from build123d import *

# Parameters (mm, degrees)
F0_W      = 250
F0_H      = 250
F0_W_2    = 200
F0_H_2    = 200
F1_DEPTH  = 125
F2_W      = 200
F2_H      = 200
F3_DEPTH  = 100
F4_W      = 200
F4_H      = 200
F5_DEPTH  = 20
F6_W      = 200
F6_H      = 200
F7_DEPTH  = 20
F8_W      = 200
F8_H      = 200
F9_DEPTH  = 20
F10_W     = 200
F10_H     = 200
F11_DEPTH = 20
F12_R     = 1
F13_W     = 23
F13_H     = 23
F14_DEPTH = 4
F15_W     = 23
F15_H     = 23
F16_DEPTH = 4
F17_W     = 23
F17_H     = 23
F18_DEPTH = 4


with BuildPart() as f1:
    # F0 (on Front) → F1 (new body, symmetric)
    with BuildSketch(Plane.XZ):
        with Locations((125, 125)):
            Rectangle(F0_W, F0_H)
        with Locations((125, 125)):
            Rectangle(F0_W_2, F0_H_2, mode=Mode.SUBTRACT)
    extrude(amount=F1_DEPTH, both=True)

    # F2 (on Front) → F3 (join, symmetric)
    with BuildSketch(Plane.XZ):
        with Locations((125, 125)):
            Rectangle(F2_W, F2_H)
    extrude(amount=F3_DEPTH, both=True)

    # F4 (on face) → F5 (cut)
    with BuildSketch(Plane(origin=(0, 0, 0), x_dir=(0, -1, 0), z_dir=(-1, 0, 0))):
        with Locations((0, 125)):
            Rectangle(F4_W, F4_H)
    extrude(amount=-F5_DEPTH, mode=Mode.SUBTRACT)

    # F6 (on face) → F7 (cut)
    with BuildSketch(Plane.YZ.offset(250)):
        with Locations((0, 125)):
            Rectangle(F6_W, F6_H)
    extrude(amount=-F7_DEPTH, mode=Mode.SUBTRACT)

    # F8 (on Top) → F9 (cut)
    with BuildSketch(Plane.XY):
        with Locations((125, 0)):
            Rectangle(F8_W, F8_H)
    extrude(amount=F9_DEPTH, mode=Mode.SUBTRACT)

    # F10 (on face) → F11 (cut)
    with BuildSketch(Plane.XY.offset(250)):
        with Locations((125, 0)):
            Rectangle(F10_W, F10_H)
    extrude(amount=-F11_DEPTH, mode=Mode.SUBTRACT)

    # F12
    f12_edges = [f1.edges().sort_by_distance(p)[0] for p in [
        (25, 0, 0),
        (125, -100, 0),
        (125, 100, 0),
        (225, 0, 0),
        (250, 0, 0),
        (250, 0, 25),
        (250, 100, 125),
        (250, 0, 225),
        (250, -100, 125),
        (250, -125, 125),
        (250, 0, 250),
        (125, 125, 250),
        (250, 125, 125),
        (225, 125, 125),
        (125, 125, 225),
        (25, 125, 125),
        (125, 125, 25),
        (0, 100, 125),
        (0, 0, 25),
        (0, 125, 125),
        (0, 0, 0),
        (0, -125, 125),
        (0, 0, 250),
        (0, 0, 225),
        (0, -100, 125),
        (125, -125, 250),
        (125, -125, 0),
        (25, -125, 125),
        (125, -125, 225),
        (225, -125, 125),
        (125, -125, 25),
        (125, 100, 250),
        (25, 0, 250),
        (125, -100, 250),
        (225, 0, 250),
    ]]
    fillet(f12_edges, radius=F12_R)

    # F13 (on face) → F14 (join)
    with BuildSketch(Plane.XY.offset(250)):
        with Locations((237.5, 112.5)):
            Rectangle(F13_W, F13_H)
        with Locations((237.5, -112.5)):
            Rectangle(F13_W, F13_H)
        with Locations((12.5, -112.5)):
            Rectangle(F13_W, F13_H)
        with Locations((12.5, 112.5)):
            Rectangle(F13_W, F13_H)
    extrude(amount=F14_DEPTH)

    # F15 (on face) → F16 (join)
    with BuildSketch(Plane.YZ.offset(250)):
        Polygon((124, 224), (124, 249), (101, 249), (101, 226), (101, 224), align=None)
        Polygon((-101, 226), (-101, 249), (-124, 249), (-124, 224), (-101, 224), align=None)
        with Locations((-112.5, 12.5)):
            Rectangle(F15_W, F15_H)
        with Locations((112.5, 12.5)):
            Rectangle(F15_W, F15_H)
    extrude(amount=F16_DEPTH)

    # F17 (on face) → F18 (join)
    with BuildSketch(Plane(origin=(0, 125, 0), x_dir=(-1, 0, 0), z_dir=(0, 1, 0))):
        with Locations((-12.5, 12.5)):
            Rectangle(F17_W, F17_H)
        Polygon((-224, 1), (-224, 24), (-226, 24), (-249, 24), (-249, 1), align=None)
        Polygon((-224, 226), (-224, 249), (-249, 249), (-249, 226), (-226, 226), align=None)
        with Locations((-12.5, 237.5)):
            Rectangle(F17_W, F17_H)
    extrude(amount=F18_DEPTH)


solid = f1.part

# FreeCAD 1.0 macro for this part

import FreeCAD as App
import Part
import Sketcher

V = App.Vector
Q = App.Units.Quantity


def edges_at(feature, points):
    """Names of the edges that pass closest to the given points."""
    edges = feature.Shape.Edges
    near = lambda p: min(range(len(edges)), key=lambda i: edges[i].distToShape(Part.Vertex(*p))[0])
    return sorted({f"Edge{near(p) + 1}" for p in points})

doc = App.newDocument("Part")
body = doc.addObject("PartDesign::Body", "Body")

# Sketch on XZ plane
sketch1 = body.newObject("Sketcher::SketchObject", "Sketch")
sketch1.AttachmentSupport = (doc.getObject("XZ_Plane"), [""])
sketch1.MapMode = "FlatFace"
sketch1.addGeometry([
    Part.LineSegment(V(0, 250, 0), V(0, 0, 0)),  # 0
    Part.LineSegment(V(0, 0, 0), V(250, 0, 0)),  # 1
    Part.LineSegment(V(250, 0, 0), V(250, 250, 0)),  # 2
    Part.LineSegment(V(250, 250, 0), V(0, 250, 0)),  # 3
    Part.LineSegment(V(225, 25, 0), V(25, 25, 0)),  # 4
    Part.LineSegment(V(25, 25, 0), V(25, 225, 0)),  # 5
    Part.LineSegment(V(25, 225, 0), V(225, 225, 0)),  # 6
    Part.LineSegment(V(225, 225, 0), V(225, 25, 0)),  # 7
], False)
sketch1.addConstraint([
    Sketcher.Constraint("Coincident", 0, 2, 1, 1),
    Sketcher.Constraint("Coincident", 1, 2, 2, 1),
    Sketcher.Constraint("Coincident", 2, 2, 3, 1),
    Sketcher.Constraint("Coincident", 3, 2, 0, 1),
    Sketcher.Constraint("Coincident", 4, 2, 5, 1),
    Sketcher.Constraint("Coincident", 5, 2, 6, 1),
    Sketcher.Constraint("Coincident", 6, 2, 7, 1),
    Sketcher.Constraint("Coincident", 7, 2, 4, 1),
    Sketcher.Constraint("Vertical", 0),
    Sketcher.Constraint("Horizontal", 1),
    Sketcher.Constraint("Vertical", 2),
    Sketcher.Constraint("Horizontal", 3),
    Sketcher.Constraint("Horizontal", 4),
    Sketcher.Constraint("Vertical", 5),
    Sketcher.Constraint("Horizontal", 6),
    Sketcher.Constraint("Vertical", 7),
    Sketcher.Constraint("Coincident", 0, 2, -1, 1),
    Sketcher.Constraint("Equal", 3, 0),
    Sketcher.Constraint("Equal", 6, 5),
    Sketcher.Constraint("DistanceX", 1, 1, 1, 2, Q("250 mm")),
    Sketcher.Constraint("DistanceX", 4, 2, 4, 1, Q("200 mm")),
    Sketcher.Constraint("DistanceX", -1, 1, 4, 2, Q("25 mm")),
    Sketcher.Constraint("DistanceY", -1, 1, 4, 2, Q("25 mm")),
])
pad1 = body.newObject("PartDesign::Pad", "Pad")
pad1.Profile = sketch1
pad1.Length = 250
pad1.Midplane = True

# Sketch on XZ plane
sketch2 = body.newObject("Sketcher::SketchObject", "Sketch001")
sketch2.AttachmentSupport = (doc.getObject("XZ_Plane"), [""])
sketch2.MapMode = "FlatFace"
sketch2.addGeometry([
    Part.LineSegment(V(25, 225, 0), V(25, 25, 0)),
    Part.LineSegment(V(25, 25, 0), V(225, 25, 0)),
    Part.LineSegment(V(225, 25, 0), V(225, 225, 0)),
    Part.LineSegment(V(225, 225, 0), V(25, 225, 0)),
], False)
sketch2.addConstraint([
    Sketcher.Constraint("Coincident", 0, 2, 1, 1),
    Sketcher.Constraint("Coincident", 1, 2, 2, 1),
    Sketcher.Constraint("Coincident", 2, 2, 3, 1),
    Sketcher.Constraint("Coincident", 3, 2, 0, 1),
    Sketcher.Constraint("Vertical", 0),
    Sketcher.Constraint("Horizontal", 1),
    Sketcher.Constraint("Vertical", 2),
    Sketcher.Constraint("Horizontal", 3),
    Sketcher.Constraint("Equal", 3, 0),
    Sketcher.Constraint("DistanceX", 1, 1, 1, 2, Q("200 mm")),
    Sketcher.Constraint("DistanceX", -1, 1, 0, 2, Q("25 mm")),
    Sketcher.Constraint("DistanceY", -1, 1, 0, 2, Q("25 mm")),
])
pad2 = body.newObject("PartDesign::Pad", "Pad001")
pad2.Profile = sketch2
pad2.Length = 200
pad2.Midplane = True

# Sketch on YZ plane
sketch3 = body.newObject("Sketcher::SketchObject", "Sketch002")
sketch3.AttachmentSupport = (doc.getObject("YZ_Plane"), [""])
sketch3.MapMode = "FlatFace"
sketch3.addGeometry([
    Part.LineSegment(V(100, 225, 0), V(100, 25, 0)),
    Part.LineSegment(V(100, 25, 0), V(-100, 25, 0)),
    Part.LineSegment(V(-100, 25, 0), V(-100, 225, 0)),
    Part.LineSegment(V(-100, 225, 0), V(100, 225, 0)),
], False)
sketch3.addConstraint([
    Sketcher.Constraint("Coincident", 0, 2, 1, 1),
    Sketcher.Constraint("Coincident", 1, 2, 2, 1),
    Sketcher.Constraint("Coincident", 2, 2, 3, 1),
    Sketcher.Constraint("Coincident", 3, 2, 0, 1),
    Sketcher.Constraint("Vertical", 0),
    Sketcher.Constraint("Horizontal", 1),
    Sketcher.Constraint("Vertical", 2),
    Sketcher.Constraint("Horizontal", 3),
    Sketcher.Constraint("Equal", 3, 0),
    Sketcher.Constraint("DistanceX", 1, 2, 1, 1, Q("200 mm")),
    Sketcher.Constraint("DistanceX", -1, 1, 0, 2, Q("100 mm")),
    Sketcher.Constraint("DistanceY", -1, 1, 0, 2, Q("25 mm")),
])
pocket1 = body.newObject("PartDesign::Pocket", "Pocket")
pocket1.Profile = sketch3
pocket1.Length = 20
pocket1.Reversed = True

# Sketch on YZ plane
sketch4 = body.newObject("Sketcher::SketchObject", "Sketch003")
sketch4.AttachmentSupport = (doc.getObject("YZ_Plane"), [""])
sketch4.MapMode = "FlatFace"
sketch4.AttachmentOffset = App.Placement(V(0, 0, 250), App.Rotation())
sketch4.addGeometry([
    Part.LineSegment(V(-100, 225, 0), V(-100, 25, 0)),
    Part.LineSegment(V(-100, 25, 0), V(100, 25, 0)),
    Part.LineSegment(V(100, 25, 0), V(100, 225, 0)),
    Part.LineSegment(V(100, 225, 0), V(-100, 225, 0)),
], False)
sketch4.addConstraint([
    Sketcher.Constraint("Coincident", 0, 2, 1, 1),
    Sketcher.Constraint("Coincident", 1, 2, 2, 1),
    Sketcher.Constraint("Coincident", 2, 2, 3, 1),
    Sketcher.Constraint("Coincident", 3, 2, 0, 1),
    Sketcher.Constraint("Vertical", 0),
    Sketcher.Constraint("Horizontal", 1),
    Sketcher.Constraint("Vertical", 2),
    Sketcher.Constraint("Horizontal", 3),
    Sketcher.Constraint("Equal", 3, 0),
    Sketcher.Constraint("DistanceX", 1, 1, 1, 2, Q("200 mm")),
    Sketcher.Constraint("DistanceX", 0, 2, -1, 1, Q("100 mm")),
    Sketcher.Constraint("DistanceY", -1, 1, 0, 2, Q("25 mm")),
])
pocket2 = body.newObject("PartDesign::Pocket", "Pocket001")
pocket2.Profile = sketch4
pocket2.Length = 20

# Sketch on XY plane
sketch5 = body.newObject("Sketcher::SketchObject", "Sketch004")
sketch5.AttachmentSupport = (doc.getObject("XY_Plane"), [""])
sketch5.MapMode = "FlatFace"
sketch5.addGeometry([
    Part.LineSegment(V(25, 100, 0), V(25, -100, 0)),
    Part.LineSegment(V(25, -100, 0), V(225, -100, 0)),
    Part.LineSegment(V(225, -100, 0), V(225, 100, 0)),
    Part.LineSegment(V(225, 100, 0), V(25, 100, 0)),
], False)
sketch5.addConstraint([
    Sketcher.Constraint("Coincident", 0, 2, 1, 1),
    Sketcher.Constraint("Coincident", 1, 2, 2, 1),
    Sketcher.Constraint("Coincident", 2, 2, 3, 1),
    Sketcher.Constraint("Coincident", 3, 2, 0, 1),
    Sketcher.Constraint("Vertical", 0),
    Sketcher.Constraint("Horizontal", 1),
    Sketcher.Constraint("Vertical", 2),
    Sketcher.Constraint("Horizontal", 3),
    Sketcher.Constraint("Equal", 3, 0),
    Sketcher.Constraint("DistanceX", 1, 1, 1, 2, Q("200 mm")),
    Sketcher.Constraint("DistanceX", -1, 1, 0, 2, Q("25 mm")),
    Sketcher.Constraint("DistanceY", 0, 2, -1, 1, Q("100 mm")),
])
pocket3 = body.newObject("PartDesign::Pocket", "Pocket002")
pocket3.Profile = sketch5
pocket3.Length = 20
pocket3.Reversed = True

# Sketch on XY plane
sketch6 = body.newObject("Sketcher::SketchObject", "Sketch005")
sketch6.AttachmentSupport = (doc.getObject("XY_Plane"), [""])
sketch6.MapMode = "FlatFace"
sketch6.AttachmentOffset = App.Placement(V(0, 0, 250), App.Rotation())
sketch6.addGeometry([
    Part.LineSegment(V(25, 100, 0), V(25, -100, 0)),
    Part.LineSegment(V(25, -100, 0), V(225, -100, 0)),
    Part.LineSegment(V(225, -100, 0), V(225, 100, 0)),
    Part.LineSegment(V(225, 100, 0), V(25, 100, 0)),
], False)
sketch6.addConstraint([
    Sketcher.Constraint("Coincident", 0, 2, 1, 1),
    Sketcher.Constraint("Coincident", 1, 2, 2, 1),
    Sketcher.Constraint("Coincident", 2, 2, 3, 1),
    Sketcher.Constraint("Coincident", 3, 2, 0, 1),
    Sketcher.Constraint("Vertical", 0),
    Sketcher.Constraint("Horizontal", 1),
    Sketcher.Constraint("Vertical", 2),
    Sketcher.Constraint("Horizontal", 3),
    Sketcher.Constraint("Equal", 3, 0),
    Sketcher.Constraint("DistanceX", 1, 1, 1, 2, Q("200 mm")),
    Sketcher.Constraint("DistanceX", -1, 1, 0, 2, Q("25 mm")),
    Sketcher.Constraint("DistanceY", 0, 2, -1, 1, Q("100 mm")),
])
pocket4 = body.newObject("PartDesign::Pocket", "Pocket003")
pocket4.Profile = sketch6
pocket4.Length = 20
doc.recompute()

fillet = body.newObject("PartDesign::Fillet", "Fillet")
fillet.Base = (pocket4, edges_at(pocket4, [
    (25, 0, 0),
    (125, -100, 0),
    (125, 100, 0),
    (225, 0, 0),
    (250, 0, 0),
    (250, 0, 25),
    (250, 100, 125),
    (250, 0, 225),
    (250, -100, 125),
    (250, -125, 125),
    (250, 0, 250),
    (125, 125, 250),
    (250, 125, 125),
    (225, 125, 125),
    (125, 125, 225),
    (25, 125, 125),
    (125, 125, 25),
    (0, 100, 125),
    (0, 0, 25),
    (0, 125, 125),
    (0, 0, 0),
    (0, -125, 125),
    (0, 0, 250),
    (0, 0, 225),
    (0, -100, 125),
    (125, -125, 250),
    (125, -125, 0),
    (25, -125, 125),
    (125, -125, 225),
    (225, -125, 125),
    (125, -125, 25),
    (125, 100, 250),
    (25, 0, 250),
    (125, -100, 250),
    (225, 0, 250),
]))
fillet.Radius = 1

# Sketch on XY plane
sketch7 = body.newObject("Sketcher::SketchObject", "Sketch006")
sketch7.AttachmentSupport = (doc.getObject("XY_Plane"), [""])
sketch7.MapMode = "FlatFace"
sketch7.AttachmentOffset = App.Placement(V(0, 0, 250), App.Rotation())
sketch7.addGeometry([
    Part.LineSegment(V(226, 124, 0), V(226, 101, 0)),  # 0
    Part.LineSegment(V(226, 101, 0), V(249, 101, 0)),  # 1
    Part.LineSegment(V(249, 101, 0), V(249, 124, 0)),  # 2
    Part.LineSegment(V(249, 124, 0), V(226, 124, 0)),  # 3
    Part.LineSegment(V(226, -101, 0), V(226, -124, 0)),  # 4
    Part.LineSegment(V(226, -124, 0), V(249, -124, 0)),  # 5
    Part.LineSegment(V(249, -124, 0), V(249, -101, 0)),  # 6
    Part.LineSegment(V(249, -101, 0), V(226, -101, 0)),  # 7
    Part.LineSegment(V(1, -101, 0), V(1, -124, 0)),  # 8
    Part.LineSegment(V(1, -124, 0), V(24, -124, 0)),  # 9
    Part.LineSegment(V(24, -124, 0), V(24, -101, 0)),  # 10
    Part.LineSegment(V(24, -101, 0), V(1, -101, 0)),  # 11
    Part.LineSegment(V(1, 124, 0), V(1, 101, 0)),  # 12
    Part.LineSegment(V(1, 101, 0), V(24, 101, 0)),  # 13
    Part.LineSegment(V(24, 101, 0), V(24, 124, 0)),  # 14
    Part.LineSegment(V(24, 124, 0), V(1, 124, 0)),  # 15
], False)
sketch7.addConstraint([
    Sketcher.Constraint("Coincident", 0, 2, 1, 1),
    Sketcher.Constraint("Coincident", 1, 2, 2, 1),
    Sketcher.Constraint("Coincident", 2, 2, 3, 1),
    Sketcher.Constraint("Coincident", 3, 2, 0, 1),
    Sketcher.Constraint("Coincident", 4, 2, 5, 1),
    Sketcher.Constraint("Coincident", 5, 2, 6, 1),
    Sketcher.Constraint("Coincident", 6, 2, 7, 1),
    Sketcher.Constraint("Coincident", 7, 2, 4, 1),
    Sketcher.Constraint("Coincident", 8, 2, 9, 1),
    Sketcher.Constraint("Coincident", 9, 2, 10, 1),
    Sketcher.Constraint("Coincident", 10, 2, 11, 1),
    Sketcher.Constraint("Coincident", 11, 2, 8, 1),
    Sketcher.Constraint("Coincident", 12, 2, 13, 1),
    Sketcher.Constraint("Coincident", 13, 2, 14, 1),
    Sketcher.Constraint("Coincident", 14, 2, 15, 1),
    Sketcher.Constraint("Coincident", 15, 2, 12, 1),
    Sketcher.Constraint("Vertical", 0),
    Sketcher.Constraint("Horizontal", 1),
    Sketcher.Constraint("Vertical", 2),
    Sketcher.Constraint("Horizontal", 3),
    Sketcher.Constraint("Vertical", 4),
    Sketcher.Constraint("Horizontal", 5),
    Sketcher.Constraint("Vertical", 6),
    Sketcher.Constraint("Horizontal", 7),
    Sketcher.Constraint("Vertical", 8),
    Sketcher.Constraint("Horizontal", 9),
    Sketcher.Constraint("Vertical", 10),
    Sketcher.Constraint("Horizontal", 11),
    Sketcher.Constraint("Vertical", 12),
    Sketcher.Constraint("Horizontal", 13),
    Sketcher.Constraint("Vertical", 14),
    Sketcher.Constraint("Horizontal", 15),
    Sketcher.Constraint("Symmetric", 3, 2, 4, 2, -1),
    Sketcher.Constraint("Symmetric", 1, 2, 6, 2, -1),
    Sketcher.Constraint("Symmetric", 11, 2, 12, 2, -1),
    Sketcher.Constraint("Symmetric", 9, 2, 14, 2, -1),
    Sketcher.Constraint("Horizontal", 5, 2, 8, 2),
    Sketcher.Constraint("Horizontal", 7, 2, 10, 2),
    Sketcher.Constraint("Equal", 7, 9),
    Sketcher.Constraint("Equal", 15, 0),
    Sketcher.Constraint("DistanceX", 1, 1, 1, 2, Q("23 mm")),
    Sketcher.Constraint("DistanceX", -1, 1, 0, 2, Q("226 mm")),
    Sketcher.Constraint("DistanceY", -1, 1, 0, 2, Q("101 mm")),
    Sketcher.Constraint("DistanceX", -1, 1, 8, 2, Q("1 mm")),
])
pad3 = body.newObject("PartDesign::Pad", "Pad002")
pad3.Profile = sketch7
pad3.Length = 4

# Sketch on YZ plane
sketch8 = body.newObject("Sketcher::SketchObject", "Sketch007")
sketch8.AttachmentSupport = (doc.getObject("YZ_Plane"), [""])
sketch8.MapMode = "FlatFace"
sketch8.AttachmentOffset = App.Placement(V(0, 0, 250), App.Rotation())
sketch8.addGeometry([
    Part.LineSegment(V(124, 224, 0), V(124, 249, 0)),  # 0
    Part.LineSegment(V(124, 249, 0), V(101, 249, 0)),  # 1
    Part.LineSegment(V(101, 249, 0), V(101, 224, 0)),  # 2
    Part.LineSegment(V(101, 224, 0), V(124, 224, 0)),  # 3
    Part.LineSegment(V(-101, 249, 0), V(-124, 249, 0)),  # 4
    Part.LineSegment(V(-124, 249, 0), V(-124, 224, 0)),  # 5
    Part.LineSegment(V(-124, 224, 0), V(-101, 224, 0)),  # 6
    Part.LineSegment(V(-101, 224, 0), V(-101, 249, 0)),  # 7
    Part.LineSegment(V(-124, 24, 0), V(-124, 1, 0)),  # 8
    Part.LineSegment(V(-124, 1, 0), V(-101, 1, 0)),  # 9
    Part.LineSegment(V(-101, 1, 0), V(-101, 24, 0)),  # 10
    Part.LineSegment(V(-101, 24, 0), V(-124, 24, 0)),  # 11
    Part.LineSegment(V(101, 24, 0), V(101, 1, 0)),  # 12
    Part.LineSegment(V(101, 1, 0), V(124, 1, 0)),  # 13
    Part.LineSegment(V(124, 1, 0), V(124, 24, 0)),  # 14
    Part.LineSegment(V(124, 24, 0), V(101, 24, 0)),  # 15
], False)
sketch8.addConstraint([
    Sketcher.Constraint("Coincident", 0, 2, 1, 1),
    Sketcher.Constraint("Coincident", 1, 2, 2, 1),
    Sketcher.Constraint("Coincident", 2, 2, 3, 1),
    Sketcher.Constraint("Coincident", 3, 2, 0, 1),
    Sketcher.Constraint("Coincident", 4, 2, 5, 1),
    Sketcher.Constraint("Coincident", 5, 2, 6, 1),
    Sketcher.Constraint("Coincident", 6, 2, 7, 1),
    Sketcher.Constraint("Coincident", 7, 2, 4, 1),
    Sketcher.Constraint("Coincident", 8, 2, 9, 1),
    Sketcher.Constraint("Coincident", 9, 2, 10, 1),
    Sketcher.Constraint("Coincident", 10, 2, 11, 1),
    Sketcher.Constraint("Coincident", 11, 2, 8, 1),
    Sketcher.Constraint("Coincident", 12, 2, 13, 1),
    Sketcher.Constraint("Coincident", 13, 2, 14, 1),
    Sketcher.Constraint("Coincident", 14, 2, 15, 1),
    Sketcher.Constraint("Coincident", 15, 2, 12, 1),
    Sketcher.Constraint("Vertical", 0),
    Sketcher.Constraint("Horizontal", 1),
    Sketcher.Constraint("Vertical", 2),
    Sketcher.Constraint("Horizontal", 3),
    Sketcher.Constraint("Horizontal", 4),
    Sketcher.Constraint("Vertical", 5),
    Sketcher.Constraint("Horizontal", 6),
    Sketcher.Constraint("Vertical", 7),
    Sketcher.Constraint("Vertical", 8),
    Sketcher.Constraint("Horizontal", 9),
    Sketcher.Constraint("Vertical", 10),
    Sketcher.Constraint("Horizontal", 11),
    Sketcher.Constraint("Vertical", 12),
    Sketcher.Constraint("Horizontal", 13),
    Sketcher.Constraint("Vertical", 14),
    Sketcher.Constraint("Horizontal", 15),
    Sketcher.Constraint("Symmetric", 0, 2, 4, 2, -2),
    Sketcher.Constraint("Symmetric", 2, 2, 6, 2, -2),
    Sketcher.Constraint("Symmetric", 9, 2, 12, 2, -2),
    Sketcher.Constraint("Symmetric", 11, 2, 14, 2, -2),
    Sketcher.Constraint("Vertical", 5, 2, 8, 2),
    Sketcher.Constraint("Vertical", 7, 2, 9, 2),
    Sketcher.Constraint("Equal", 15, 8),
    Sketcher.Constraint("DistanceX", 1, 2, 1, 1, Q("23 mm")),
    Sketcher.Constraint("DistanceY", 0, 1, 0, 2, Q("25 mm")),
    Sketcher.Constraint("DistanceX", -1, 1, 0, 2, Q("124 mm")),
    Sketcher.Constraint("DistanceY", -1, 1, 0, 2, Q("249 mm")),
    Sketcher.Constraint("DistanceY", -1, 1, 8, 2, Q("1 mm")),
])
pad4 = body.newObject("PartDesign::Pad", "Pad003")
pad4.Profile = sketch8
pad4.Length = 4

# Sketch on XZ plane
sketch9 = body.newObject("Sketcher::SketchObject", "Sketch008")
sketch9.AttachmentSupport = (doc.getObject("XZ_Plane"), [""])
sketch9.MapMode = "FlatFace"
sketch9.AttachmentOffset = App.Placement(V(0, 0, -125), App.Rotation())
sketch9.addGeometry([
    Part.LineSegment(V(24, 24, 0), V(24, 1, 0)),  # 0
    Part.LineSegment(V(24, 1, 0), V(1, 1, 0)),  # 1
    Part.LineSegment(V(1, 1, 0), V(1, 24, 0)),  # 2
    Part.LineSegment(V(1, 24, 0), V(24, 24, 0)),  # 3
    Part.LineSegment(V(224, 1, 0), V(224, 24, 0)),  # 4
    Part.LineSegment(V(224, 24, 0), V(249, 24, 0)),  # 5
    Part.LineSegment(V(249, 24, 0), V(249, 1, 0)),  # 6
    Part.LineSegment(V(249, 1, 0), V(224, 1, 0)),  # 7
    Part.LineSegment(V(224, 226, 0), V(224, 249, 0)),  # 8
    Part.LineSegment(V(224, 249, 0), V(249, 249, 0)),  # 9
    Part.LineSegment(V(249, 249, 0), V(249, 226, 0)),  # 10
    Part.LineSegment(V(249, 226, 0), V(224, 226, 0)),  # 11
    Part.LineSegment(V(24, 249, 0), V(24, 226, 0)),  # 12
    Part.LineSegment(V(24, 226, 0), V(1, 226, 0)),  # 13
    Part.LineSegment(V(1, 226, 0), V(1, 249, 0)),  # 14
    Part.LineSegment(V(1, 249, 0), V(24, 249, 0)),  # 15
], False)
sketch9.addConstraint([
    Sketcher.Constraint("Coincident", 0, 2, 1, 1),
    Sketcher.Constraint("Coincident", 1, 2, 2, 1),
    Sketcher.Constraint("Coincident", 2, 2, 3, 1),
    Sketcher.Constraint("Coincident", 3, 2, 0, 1),
    Sketcher.Constraint("Coincident", 4, 2, 5, 1),
    Sketcher.Constraint("Coincident", 5, 2, 6, 1),
    Sketcher.Constraint("Coincident", 6, 2, 7, 1),
    Sketcher.Constraint("Coincident", 7, 2, 4, 1),
    Sketcher.Constraint("Coincident", 8, 2, 9, 1),
    Sketcher.Constraint("Coincident", 9, 2, 10, 1),
    Sketcher.Constraint("Coincident", 10, 2, 11, 1),
    Sketcher.Constraint("Coincident", 11, 2, 8, 1),
    Sketcher.Constraint("Coincident", 12, 2, 13, 1),
    Sketcher.Constraint("Coincident", 13, 2, 14, 1),
    Sketcher.Constraint("Coincident", 14, 2, 15, 1),
    Sketcher.Constraint("Coincident", 15, 2, 12, 1),
    Sketcher.Constraint("Vertical", 0),
    Sketcher.Constraint("Horizontal", 1),
    Sketcher.Constraint("Vertical", 2),
    Sketcher.Constraint("Horizontal", 3),
    Sketcher.Constraint("Vertical", 4),
    Sketcher.Constraint("Horizontal", 5),
    Sketcher.Constraint("Vertical", 6),
    Sketcher.Constraint("Horizontal", 7),
    Sketcher.Constraint("Vertical", 8),
    Sketcher.Constraint("Horizontal", 9),
    Sketcher.Constraint("Vertical", 10),
    Sketcher.Constraint("Horizontal", 11),
    Sketcher.Constraint("Vertical", 12),
    Sketcher.Constraint("Horizontal", 13),
    Sketcher.Constraint("Vertical", 14),
    Sketcher.Constraint("Horizontal", 15),
    Sketcher.Constraint("Horizontal", 3, 2, 4, 2),
    Sketcher.Constraint("Horizontal", 1, 2, 6, 2),
    Sketcher.Constraint("Horizontal", 11, 2, 12, 2),
    Sketcher.Constraint("Horizontal", 9, 2, 14, 2),
    Sketcher.Constraint("Vertical", 7, 2, 8, 2),
    Sketcher.Constraint("Vertical", 6, 2, 9, 2),
    Sketcher.Constraint("Vertical", 3, 2, 12, 2),
    Sketcher.Constraint("Vertical", 2, 2, 13, 2),
    Sketcher.Constraint("Equal", 15, 0),
    Sketcher.Constraint("Equal", 6, 8),
    Sketcher.Constraint("DistanceX", 1, 2, 1, 1, Q("23 mm")),
    Sketcher.Constraint("DistanceX", 5, 1, 5, 2, Q("25 mm")),
    Sketcher.Constraint("DistanceX", -1, 1, 0, 2, Q("24 mm")),
    Sketcher.Constraint("DistanceY", -1, 1, 0, 2, Q("1 mm")),
    Sketcher.Constraint("DistanceX", -1, 1, 4, 2, Q("224 mm")),
    Sketcher.Constraint("DistanceY", -1, 1, 8, 2, Q("249 mm")),
])
pad5 = body.newObject("PartDesign::Pad", "Pad004")
pad5.Profile = sketch9
pad5.Length = 4
pad5.Reversed = True

doc.recompute()
